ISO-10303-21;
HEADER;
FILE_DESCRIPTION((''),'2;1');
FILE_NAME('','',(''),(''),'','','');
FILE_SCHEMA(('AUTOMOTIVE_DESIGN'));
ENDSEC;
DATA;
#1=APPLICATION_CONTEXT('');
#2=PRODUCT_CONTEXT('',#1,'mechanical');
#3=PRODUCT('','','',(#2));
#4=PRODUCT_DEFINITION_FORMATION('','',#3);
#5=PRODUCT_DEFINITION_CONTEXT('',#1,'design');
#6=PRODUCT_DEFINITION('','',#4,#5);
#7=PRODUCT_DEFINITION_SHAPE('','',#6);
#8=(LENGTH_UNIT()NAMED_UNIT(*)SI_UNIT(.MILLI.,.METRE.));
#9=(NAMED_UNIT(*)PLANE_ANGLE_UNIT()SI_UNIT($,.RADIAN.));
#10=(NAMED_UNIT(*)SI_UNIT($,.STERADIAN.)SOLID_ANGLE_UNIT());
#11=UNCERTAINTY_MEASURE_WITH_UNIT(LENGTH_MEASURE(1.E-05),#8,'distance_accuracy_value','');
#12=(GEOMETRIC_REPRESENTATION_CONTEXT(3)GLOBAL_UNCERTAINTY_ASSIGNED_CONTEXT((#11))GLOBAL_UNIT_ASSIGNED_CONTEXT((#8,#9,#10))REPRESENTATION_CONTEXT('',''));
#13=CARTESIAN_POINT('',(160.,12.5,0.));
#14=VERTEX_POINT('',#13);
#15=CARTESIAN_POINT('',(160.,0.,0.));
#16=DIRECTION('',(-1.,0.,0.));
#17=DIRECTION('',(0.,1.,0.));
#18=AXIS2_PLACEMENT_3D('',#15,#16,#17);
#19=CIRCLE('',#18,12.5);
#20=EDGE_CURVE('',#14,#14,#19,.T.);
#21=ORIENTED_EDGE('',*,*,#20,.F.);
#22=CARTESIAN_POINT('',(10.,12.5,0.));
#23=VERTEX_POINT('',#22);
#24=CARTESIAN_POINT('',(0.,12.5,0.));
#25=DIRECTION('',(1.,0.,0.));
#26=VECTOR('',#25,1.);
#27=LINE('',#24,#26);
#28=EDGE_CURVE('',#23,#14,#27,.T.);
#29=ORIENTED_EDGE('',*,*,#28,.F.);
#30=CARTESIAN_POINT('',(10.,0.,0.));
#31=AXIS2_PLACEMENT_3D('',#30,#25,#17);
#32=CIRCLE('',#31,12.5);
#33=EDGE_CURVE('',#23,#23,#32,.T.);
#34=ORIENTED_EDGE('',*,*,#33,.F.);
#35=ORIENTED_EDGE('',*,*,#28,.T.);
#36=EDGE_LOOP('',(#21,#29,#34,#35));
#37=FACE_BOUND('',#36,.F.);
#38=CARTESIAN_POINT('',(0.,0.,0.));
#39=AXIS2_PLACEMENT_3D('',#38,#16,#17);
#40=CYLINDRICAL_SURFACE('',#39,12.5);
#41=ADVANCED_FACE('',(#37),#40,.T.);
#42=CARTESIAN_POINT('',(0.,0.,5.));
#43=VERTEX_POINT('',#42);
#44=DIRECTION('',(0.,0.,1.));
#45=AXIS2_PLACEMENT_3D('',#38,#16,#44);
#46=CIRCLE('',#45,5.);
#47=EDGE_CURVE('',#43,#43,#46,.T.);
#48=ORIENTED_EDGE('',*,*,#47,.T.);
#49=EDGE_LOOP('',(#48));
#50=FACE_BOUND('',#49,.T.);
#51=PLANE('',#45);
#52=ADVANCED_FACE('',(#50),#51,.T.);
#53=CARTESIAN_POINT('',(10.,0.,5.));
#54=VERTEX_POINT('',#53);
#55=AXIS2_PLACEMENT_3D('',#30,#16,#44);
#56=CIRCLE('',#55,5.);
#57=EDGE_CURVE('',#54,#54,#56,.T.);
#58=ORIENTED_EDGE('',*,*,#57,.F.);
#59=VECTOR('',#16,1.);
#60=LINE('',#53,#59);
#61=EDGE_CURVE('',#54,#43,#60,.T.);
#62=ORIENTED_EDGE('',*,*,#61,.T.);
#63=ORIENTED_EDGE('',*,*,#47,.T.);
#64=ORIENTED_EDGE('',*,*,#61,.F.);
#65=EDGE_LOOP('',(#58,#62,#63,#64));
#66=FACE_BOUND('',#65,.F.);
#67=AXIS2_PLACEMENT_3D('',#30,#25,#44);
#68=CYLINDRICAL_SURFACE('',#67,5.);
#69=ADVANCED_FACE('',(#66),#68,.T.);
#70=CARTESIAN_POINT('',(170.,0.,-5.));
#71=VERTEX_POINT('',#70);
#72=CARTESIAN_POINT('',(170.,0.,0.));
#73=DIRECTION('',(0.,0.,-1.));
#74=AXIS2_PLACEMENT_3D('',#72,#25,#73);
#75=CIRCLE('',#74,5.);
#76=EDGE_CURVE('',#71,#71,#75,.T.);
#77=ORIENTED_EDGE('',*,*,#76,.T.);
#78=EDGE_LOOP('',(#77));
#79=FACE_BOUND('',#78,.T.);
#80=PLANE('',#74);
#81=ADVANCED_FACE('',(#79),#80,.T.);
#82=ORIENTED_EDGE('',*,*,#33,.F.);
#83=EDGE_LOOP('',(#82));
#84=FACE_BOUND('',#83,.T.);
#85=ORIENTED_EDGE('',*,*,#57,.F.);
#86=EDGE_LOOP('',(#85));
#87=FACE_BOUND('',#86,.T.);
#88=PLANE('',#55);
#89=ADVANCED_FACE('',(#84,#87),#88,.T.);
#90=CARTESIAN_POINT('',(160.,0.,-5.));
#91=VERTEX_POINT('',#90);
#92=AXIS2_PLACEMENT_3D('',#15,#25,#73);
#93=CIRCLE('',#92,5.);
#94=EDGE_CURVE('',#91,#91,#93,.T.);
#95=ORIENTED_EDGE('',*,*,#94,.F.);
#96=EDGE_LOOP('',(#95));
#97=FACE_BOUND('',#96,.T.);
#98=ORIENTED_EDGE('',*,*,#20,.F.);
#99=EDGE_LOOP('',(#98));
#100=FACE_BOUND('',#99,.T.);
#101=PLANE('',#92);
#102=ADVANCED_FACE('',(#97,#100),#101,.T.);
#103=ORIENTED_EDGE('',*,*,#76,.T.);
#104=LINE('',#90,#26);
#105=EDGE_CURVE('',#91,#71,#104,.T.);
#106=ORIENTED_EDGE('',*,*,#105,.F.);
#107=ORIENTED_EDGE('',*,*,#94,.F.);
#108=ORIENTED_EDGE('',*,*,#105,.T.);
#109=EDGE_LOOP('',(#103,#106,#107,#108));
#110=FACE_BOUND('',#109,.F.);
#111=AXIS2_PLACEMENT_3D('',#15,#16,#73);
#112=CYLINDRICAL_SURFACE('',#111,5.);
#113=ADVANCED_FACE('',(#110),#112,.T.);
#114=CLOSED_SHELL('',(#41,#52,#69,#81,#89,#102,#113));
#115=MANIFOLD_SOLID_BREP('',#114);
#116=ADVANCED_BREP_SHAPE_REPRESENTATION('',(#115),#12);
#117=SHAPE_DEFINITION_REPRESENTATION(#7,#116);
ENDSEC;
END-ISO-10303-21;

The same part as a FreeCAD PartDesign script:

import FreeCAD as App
import Part
import Sketcher
from FreeCAD import Vector
Q = App.Units.Quantity

doc = App.newDocument("Part")
body = doc.addObject("PartDesign::Body", "Body")

# Sketch on YZ plane
sketch1 = body.newObject("Sketcher::SketchObject", "Sketch")
sketch1.AttachmentSupport = (doc.getObject("YZ_Plane"), [""])
sketch1.MapMode = "FlatFace"
sketch1.addGeometry(Part.Circle(Vector(0, 0, 0), Vector(0, 0, 1), 12), False)
sketch1.addConstraint(Sketcher.Constraint("Coincident", 0, 3, -1, 1))
sketch1.addConstraint(Sketcher.Constraint("Diameter", 0, Q("25 mm")))
pad1 = body.newObject("PartDesign::Pad", "Pad")
pad1.Profile = sketch1
pad1.Length = 170

# Sketch on YZ plane
sketch2 = body.newObject("Sketcher::SketchObject", "Sketch001")
sketch2.AttachmentSupport = (doc.getObject("YZ_Plane"), [""])
sketch2.MapMode = "FlatFace"
sketch2.AttachmentOffset = App.Placement(Vector(0, 0, 170), App.Rotation())
sketch2.addGeometry(Part.Circle(Vector(0, 0, 0), Vector(0, 0, 1), 12), False)
sketch2.addConstraint(Sketcher.Constraint("Coincident", 0, 3, -1, 1))
sketch2.addConstraint(Sketcher.Constraint("Diameter", 0, Q("25 mm")))
pocket1 = body.newObject("PartDesign::Pocket", "Pocket")
pocket1.Profile = sketch2
pocket1.Length = 10

# Sketch on YZ plane
sketch3 = body.newObject("Sketcher::SketchObject", "Sketch002")
sketch3.AttachmentSupport = (doc.getObject("YZ_Plane"), [""])
sketch3.MapMode = "FlatFace"
sketch3.AttachmentOffset = App.Placement(Vector(0, 0, 160), App.Rotation())
sketch3.addGeometry(Part.Circle(Vector(0, 0, 0), Vector(0, 0, 1), 5), False)
sketch3.addConstraint(Sketcher.Constraint("Coincident", 0, 3, -1, 1))
sketch3.addConstraint(Sketcher.Constraint("Diameter", 0, Q("10 mm")))
pad2 = body.newObject("PartDesign::Pad", "Pad001")
pad2.Profile = sketch3
pad2.Length = 10

# Sketch on YZ plane
sketch4 = body.newObject("Sketcher::SketchObject", "Sketch003")
sketch4.AttachmentSupport = (doc.getObject("YZ_Plane"), [""])
sketch4.MapMode = "FlatFace"
sketch4.addGeometry(Part.Circle(Vector(0, 0, 0), Vector(0, 0, 1), 12), False)
sketch4.addConstraint(Sketcher.Constraint("Coincident", 0, 3, -1, 1))
sketch4.addConstraint(Sketcher.Constraint("Diameter", 0, Q("25 mm")))
pocket2 = body.newObject("PartDesign::Pocket", "Pocket001")
pocket2.Profile = sketch4
pocket2.Length = 10
pocket2.Reversed = True

# Sketch on YZ plane
sketch5 = body.newObject("Sketcher::SketchObject", "Sketch004")
sketch5.AttachmentSupport = (doc.getObject("YZ_Plane"), [""])
sketch5.MapMode = "FlatFace"
sketch5.AttachmentOffset = App.Placement(Vector(0, 0, 10), App.Rotation())
sketch5.addGeometry(Part.Circle(Vector(0, 0, 0), Vector(0, 0, 1), 5), False)
sketch5.addConstraint(Sketcher.Constraint("Coincident", 0, 3, -1, 1))
sketch5.addConstraint(Sketcher.Constraint("Diameter", 0, Q("10 mm")))
pad3 = body.newObject("PartDesign::Pad", "Pad002")
pad3.Profile = sketch5
pad3.Length = 10
pad3.Reversed = True

doc.recompute()
